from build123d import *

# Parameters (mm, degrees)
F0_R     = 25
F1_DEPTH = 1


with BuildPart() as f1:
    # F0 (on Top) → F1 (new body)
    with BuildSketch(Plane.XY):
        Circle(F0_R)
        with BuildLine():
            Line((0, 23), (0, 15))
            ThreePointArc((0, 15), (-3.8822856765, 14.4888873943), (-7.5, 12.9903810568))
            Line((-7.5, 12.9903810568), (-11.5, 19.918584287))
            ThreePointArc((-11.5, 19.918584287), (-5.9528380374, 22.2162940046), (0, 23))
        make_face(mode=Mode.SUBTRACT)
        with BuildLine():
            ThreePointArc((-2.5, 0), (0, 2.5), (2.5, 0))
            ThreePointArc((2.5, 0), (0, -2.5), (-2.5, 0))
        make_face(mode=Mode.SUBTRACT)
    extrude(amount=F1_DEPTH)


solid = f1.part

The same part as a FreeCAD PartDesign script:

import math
import FreeCAD as App
import Part
import Sketcher

V = App.Vector
Q = App.Units.Quantity

doc = App.newDocument("Part")
body = doc.addObject("PartDesign::Body", "Body")

sketch1 = body.newObject("Sketcher::SketchObject", "Sketch")
sketch1.AttachmentSupport = (doc.getObject("XY_Plane"), [""])
sketch1.MapMode = "FlatFace"
sketch1.addGeometry(Part.Circle(V(0, 0, 0), V(0, 0, 1), 25), False)
sketch1.addGeometry(Part.Circle(V(0, 0, 0), V(0, 0, 1), 2.5), False)
sketch1.addGeometry(Part.ArcOfCircle(Part.Circle(V(0, 0, 0), V(0, 0, 1), 23), math.radians(90), math.radians(120)), False)
sketch1.addGeometry(Part.LineSegment(V(0, 23, 0), V(0, 15, 0)), False)
sketch1.addGeometry(Part.ArcOfCircle(Part.Circle(V(0, 0, 0), V(0, 0, 1), 15), math.radians(90), math.radians(120)), False)
sketch1.addGeometry(Part.LineSegment(V(-7.5, 13, 0), V(-11.5, 19.9, 0)), False)
sketch1.addConstraint(Sketcher.Constraint("Coincident", 2, 1, 3, 1))
sketch1.addConstraint(Sketcher.Constraint("Coincident", 3, 2, 4, 1))
sketch1.addConstraint(Sketcher.Constraint("Coincident", 4, 2, 5, 1))
sketch1.addConstraint(Sketcher.Constraint("Coincident", 5, 2, 2, 2))
sketch1.addConstraint(Sketcher.Constraint("Vertical", 3))
sketch1.addConstraint(Sketcher.Constraint("Coincident", 0, 3, -1, 1))
sketch1.addConstraint(Sketcher.Constraint("Coincident", 1, 3, -1, 1))
sketch1.addConstraint(Sketcher.Constraint("Coincident", 2, 3, -1, 1))
sketch1.addConstraint(Sketcher.Constraint("Coincident", 4, 3, -1, 1))
sketch1.addConstraint(Sketcher.Constraint("PointOnObject", 2, 1, -2))
sketch1.addConstraint(Sketcher.Constraint("Diameter", 0, Q("50 mm")))
sketch1.addConstraint(Sketcher.Constraint("Diameter", 1, Q("5 mm")))
sketch1.addConstraint(Sketcher.Constraint("Radius", 2, Q("23 mm")))
sketch1.addConstraint(Sketcher.Constraint("Radius", 4, Q("15 mm")))
sketch1.addConstraint(Sketcher.Constraint("Angle", 5, Q("120 deg")))
sketch1.addConstraint(Sketcher.Constraint("DistanceX", 4, 2, -1, 1, Q("7.5 mm")))
pad1 = body.newObject("PartDesign::Pad", "Pad")
pad1.Profile = sketch1
pad1.Length = 1

doc.recompute()
